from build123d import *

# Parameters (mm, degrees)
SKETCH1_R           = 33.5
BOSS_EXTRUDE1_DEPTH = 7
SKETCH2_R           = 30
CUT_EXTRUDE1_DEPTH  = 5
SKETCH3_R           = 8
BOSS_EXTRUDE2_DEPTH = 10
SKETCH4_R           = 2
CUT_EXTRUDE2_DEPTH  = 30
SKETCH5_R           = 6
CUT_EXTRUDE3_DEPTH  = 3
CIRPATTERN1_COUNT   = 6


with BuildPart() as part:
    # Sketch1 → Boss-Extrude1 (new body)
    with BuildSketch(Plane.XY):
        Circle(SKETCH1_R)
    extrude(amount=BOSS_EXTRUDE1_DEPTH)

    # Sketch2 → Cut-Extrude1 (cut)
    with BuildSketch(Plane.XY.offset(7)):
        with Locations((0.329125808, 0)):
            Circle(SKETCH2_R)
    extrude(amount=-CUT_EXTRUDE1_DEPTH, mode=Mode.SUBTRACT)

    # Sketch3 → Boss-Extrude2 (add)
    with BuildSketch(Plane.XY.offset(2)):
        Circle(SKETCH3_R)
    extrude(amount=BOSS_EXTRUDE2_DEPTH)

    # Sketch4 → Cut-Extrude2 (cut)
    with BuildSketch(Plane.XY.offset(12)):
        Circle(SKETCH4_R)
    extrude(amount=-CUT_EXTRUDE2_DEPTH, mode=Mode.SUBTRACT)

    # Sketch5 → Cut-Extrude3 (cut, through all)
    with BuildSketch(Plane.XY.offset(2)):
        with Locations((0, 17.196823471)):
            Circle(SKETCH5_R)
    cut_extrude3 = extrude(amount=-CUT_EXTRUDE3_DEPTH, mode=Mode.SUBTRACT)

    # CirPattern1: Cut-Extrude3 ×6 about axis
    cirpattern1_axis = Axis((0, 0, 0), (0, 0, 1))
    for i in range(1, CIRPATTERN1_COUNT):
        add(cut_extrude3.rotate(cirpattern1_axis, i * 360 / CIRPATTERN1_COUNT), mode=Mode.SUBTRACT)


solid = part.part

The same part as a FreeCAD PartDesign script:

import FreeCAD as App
import Part
import Sketcher
from FreeCAD import Vector

doc = App.newDocument("Part")
body = doc.addObject("PartDesign::Body", "Body")

sketch1 = body.newObject("Sketcher::SketchObject", "Sketch")
sketch1.AttachmentSupport = (doc.getObject("XY_Plane"), [""])
sketch1.MapMode = "FlatFace"
sketch1.addGeometry(Part.Circle(Vector(0, 0, 0), Vector(0, 0, 1), 34), False)
sketch1.addConstraint([
    Sketcher.Constraint("Coincident", 0, 3, -1, 1),
    Sketcher.Constraint("Diameter", 0, 67.0),
])
pad1 = body.newObject("PartDesign::Pad", "Pad")
pad1.Profile = sketch1
pad1.Length = 7

sketch2 = body.newObject("Sketcher::SketchObject", "Sketch001")
sketch2.AttachmentSupport = (doc.getObject("XY_Plane"), [""])
sketch2.MapMode = "FlatFace"
sketch2.AttachmentOffset = App.Placement(Vector(0, 0, 7), App.Rotation())
sketch2.addGeometry(Part.Circle(Vector(0, 0, 0), Vector(0, 0, 1), 30), False)
sketch2.addConstraint([
    Sketcher.Constraint("PointOnObject", 0, 3, -1),
    Sketcher.Constraint("Diameter", 0, 60.0),
    Sketcher.Constraint("DistanceX", -1, 1, 0, 3, 0.329126),
])
pocket1 = body.newObject("PartDesign::Pocket", "Pocket")
pocket1.Profile = sketch2
pocket1.Length = 5

sketch3 = body.newObject("Sketcher::SketchObject", "Sketch002")
sketch3.AttachmentSupport = (doc.getObject("XY_Plane"), [""])
sketch3.MapMode = "FlatFace"
sketch3.AttachmentOffset = App.Placement(Vector(0, 0, 2), App.Rotation())
sketch3.addGeometry(Part.Circle(Vector(0, 0, 0), Vector(0, 0, 1), 8), False)
sketch3.addConstraint([
    Sketcher.Constraint("Coincident", 0, 3, -1, 1),
    Sketcher.Constraint("Diameter", 0, 16.0),
])
pad2 = body.newObject("PartDesign::Pad", "Pad001")
pad2.Profile = sketch3
pad2.Length = 10

sketch4 = body.newObject("Sketcher::SketchObject", "Sketch003")
sketch4.AttachmentSupport = (doc.getObject("XY_Plane"), [""])
sketch4.MapMode = "FlatFace"
sketch4.AttachmentOffset = App.Placement(Vector(0, 0, 12), App.Rotation())
sketch4.addGeometry(Part.Circle(Vector(0, 0, 0), Vector(0, 0, 1), 2), False)
sketch4.addConstraint([
    Sketcher.Constraint("Coincident", 0, 3, -1, 1),
    Sketcher.Constraint("Diameter", 0, 4.0),
])
pocket2 = body.newObject("PartDesign::Pocket", "Pocket001")
pocket2.Profile = sketch4
pocket2.Length = 30

sketch5 = body.newObject("Sketcher::SketchObject", "Sketch004")
sketch5.AttachmentSupport = (doc.getObject("XY_Plane"), [""])
sketch5.MapMode = "FlatFace"
sketch5.AttachmentOffset = App.Placement(Vector(0, 0, 2), App.Rotation())
sketch5.addGeometry(Part.Circle(Vector(0, 17, 0), Vector(0, 0, 1), 6), False)
sketch5.addConstraint([
    Sketcher.Constraint("PointOnObject", 0, 3, -2),
    Sketcher.Constraint("Diameter", 0, 12.0),
    Sketcher.Constraint("DistanceY", -1, 1, 0, 3, 17.196823),
])
pocket3 = body.newObject("PartDesign::Pocket", "Pocket002")
pocket3.Profile = sketch5
pocket3.Type = "ThroughAll"
doc.recompute()

polarpattern = body.newObject("PartDesign::PolarPattern", "PolarPattern")
polarpattern.Originals = [pocket3]
polarpattern.Axis = (doc.getObject("Z_Axis"), [""])
polarpattern.Angle = 360
polarpattern.Occurrences = 6
body.Tip = polarpattern

doc.recompute()
